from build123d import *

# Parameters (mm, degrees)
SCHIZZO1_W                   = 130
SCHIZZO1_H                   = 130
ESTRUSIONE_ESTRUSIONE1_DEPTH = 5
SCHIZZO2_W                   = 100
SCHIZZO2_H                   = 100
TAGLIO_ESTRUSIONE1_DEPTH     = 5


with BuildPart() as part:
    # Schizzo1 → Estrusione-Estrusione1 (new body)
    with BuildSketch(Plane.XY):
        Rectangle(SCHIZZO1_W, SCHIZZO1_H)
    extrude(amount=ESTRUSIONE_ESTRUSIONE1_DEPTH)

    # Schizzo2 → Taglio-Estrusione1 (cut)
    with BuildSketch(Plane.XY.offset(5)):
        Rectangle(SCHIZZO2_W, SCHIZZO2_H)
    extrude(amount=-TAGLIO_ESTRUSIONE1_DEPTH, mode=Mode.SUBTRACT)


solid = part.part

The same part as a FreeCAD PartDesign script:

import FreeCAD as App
import Part
import Sketcher
from FreeCAD import Vector

doc = App.newDocument("Part")
body = doc.addObject("PartDesign::Body", "Body")

sketch1 = body.newObject("Sketcher::SketchObject", "Sketch")
sketch1.AttachmentSupport = (doc.getObject("XY_Plane"), [""])
sketch1.MapMode = "FlatFace"
sketch1.addGeometry([
    Part.LineSegment(Vector(-65, 65, 0), Vector(-65, -65, 0)),
    Part.LineSegment(Vector(-65, -65, 0), Vector(65, -65, 0)),
    Part.LineSegment(Vector(65, -65, 0), Vector(65, 65, 0)),
    Part.LineSegment(Vector(65, 65, 0), Vector(-65, 65, 0)),
], False)
sketch1.addConstraint([
    Sketcher.Constraint("Coincident", 0, 2, 1, 1),
    Sketcher.Constraint("Coincident", 1, 2, 2, 1),
    Sketcher.Constraint("Coincident", 2, 2, 3, 1),
    Sketcher.Constraint("Coincident", 3, 2, 0, 1),
    Sketcher.Constraint("Vertical", 0),
    Sketcher.Constraint("Horizontal", 1),
    Sketcher.Constraint("Vertical", 2),
    Sketcher.Constraint("Horizontal", 3),
    Sketcher.Constraint("Symmetric", 0, 2, 2, 2, -1, 1),
    Sketcher.Constraint("Equal", 3, 0),
    Sketcher.Constraint("DistanceX", 1, 1, 1, 2, 130.0),
])
pad1 = body.newObject("PartDesign::Pad", "Pad")
pad1.Profile = sketch1
pad1.Length = 5

sketch2 = body.newObject("Sketcher::SketchObject", "Sketch001")
sketch2.AttachmentSupport = (doc.getObject("XY_Plane"), [""])
sketch2.MapMode = "FlatFace"
sketch2.AttachmentOffset = App.Placement(Vector(0, 0, 5), App.Rotation())
sketch2.addGeometry([
    Part.LineSegment(Vector(-50, 50, 0), Vector(-50, -50, 0)),
    Part.LineSegment(Vector(-50, -50, 0), Vector(50, -50, 0)),
    Part.LineSegment(Vector(50, -50, 0), Vector(50, 50, 0)),
    Part.LineSegment(Vector(50, 50, 0), Vector(-50, 50, 0)),
], False)
sketch2.addConstraint([
    Sketcher.Constraint("Coincident", 0, 2, 1, 1),
    Sketcher.Constraint("Coincident", 1, 2, 2, 1),
    Sketcher.Constraint("Coincident", 2, 2, 3, 1),
    Sketcher.Constraint("Coincident", 3, 2, 0, 1),
    Sketcher.Constraint("Vertical", 0),
    Sketcher.Constraint("Horizontal", 1),
    Sketcher.Constraint("Vertical", 2),
    Sketcher.Constraint("Horizontal", 3),
    Sketcher.Constraint("Symmetric", 0, 2, 2, 2, -1, 1),
    Sketcher.Constraint("Equal", 3, 0),
    Sketcher.Constraint("DistanceX", 1, 1, 1, 2, 100.0),
])
pocket1 = body.newObject("PartDesign::Pocket", "Pocket")
pocket1.Profile = sketch2
pocket1.Length = 5

doc.recompute()
